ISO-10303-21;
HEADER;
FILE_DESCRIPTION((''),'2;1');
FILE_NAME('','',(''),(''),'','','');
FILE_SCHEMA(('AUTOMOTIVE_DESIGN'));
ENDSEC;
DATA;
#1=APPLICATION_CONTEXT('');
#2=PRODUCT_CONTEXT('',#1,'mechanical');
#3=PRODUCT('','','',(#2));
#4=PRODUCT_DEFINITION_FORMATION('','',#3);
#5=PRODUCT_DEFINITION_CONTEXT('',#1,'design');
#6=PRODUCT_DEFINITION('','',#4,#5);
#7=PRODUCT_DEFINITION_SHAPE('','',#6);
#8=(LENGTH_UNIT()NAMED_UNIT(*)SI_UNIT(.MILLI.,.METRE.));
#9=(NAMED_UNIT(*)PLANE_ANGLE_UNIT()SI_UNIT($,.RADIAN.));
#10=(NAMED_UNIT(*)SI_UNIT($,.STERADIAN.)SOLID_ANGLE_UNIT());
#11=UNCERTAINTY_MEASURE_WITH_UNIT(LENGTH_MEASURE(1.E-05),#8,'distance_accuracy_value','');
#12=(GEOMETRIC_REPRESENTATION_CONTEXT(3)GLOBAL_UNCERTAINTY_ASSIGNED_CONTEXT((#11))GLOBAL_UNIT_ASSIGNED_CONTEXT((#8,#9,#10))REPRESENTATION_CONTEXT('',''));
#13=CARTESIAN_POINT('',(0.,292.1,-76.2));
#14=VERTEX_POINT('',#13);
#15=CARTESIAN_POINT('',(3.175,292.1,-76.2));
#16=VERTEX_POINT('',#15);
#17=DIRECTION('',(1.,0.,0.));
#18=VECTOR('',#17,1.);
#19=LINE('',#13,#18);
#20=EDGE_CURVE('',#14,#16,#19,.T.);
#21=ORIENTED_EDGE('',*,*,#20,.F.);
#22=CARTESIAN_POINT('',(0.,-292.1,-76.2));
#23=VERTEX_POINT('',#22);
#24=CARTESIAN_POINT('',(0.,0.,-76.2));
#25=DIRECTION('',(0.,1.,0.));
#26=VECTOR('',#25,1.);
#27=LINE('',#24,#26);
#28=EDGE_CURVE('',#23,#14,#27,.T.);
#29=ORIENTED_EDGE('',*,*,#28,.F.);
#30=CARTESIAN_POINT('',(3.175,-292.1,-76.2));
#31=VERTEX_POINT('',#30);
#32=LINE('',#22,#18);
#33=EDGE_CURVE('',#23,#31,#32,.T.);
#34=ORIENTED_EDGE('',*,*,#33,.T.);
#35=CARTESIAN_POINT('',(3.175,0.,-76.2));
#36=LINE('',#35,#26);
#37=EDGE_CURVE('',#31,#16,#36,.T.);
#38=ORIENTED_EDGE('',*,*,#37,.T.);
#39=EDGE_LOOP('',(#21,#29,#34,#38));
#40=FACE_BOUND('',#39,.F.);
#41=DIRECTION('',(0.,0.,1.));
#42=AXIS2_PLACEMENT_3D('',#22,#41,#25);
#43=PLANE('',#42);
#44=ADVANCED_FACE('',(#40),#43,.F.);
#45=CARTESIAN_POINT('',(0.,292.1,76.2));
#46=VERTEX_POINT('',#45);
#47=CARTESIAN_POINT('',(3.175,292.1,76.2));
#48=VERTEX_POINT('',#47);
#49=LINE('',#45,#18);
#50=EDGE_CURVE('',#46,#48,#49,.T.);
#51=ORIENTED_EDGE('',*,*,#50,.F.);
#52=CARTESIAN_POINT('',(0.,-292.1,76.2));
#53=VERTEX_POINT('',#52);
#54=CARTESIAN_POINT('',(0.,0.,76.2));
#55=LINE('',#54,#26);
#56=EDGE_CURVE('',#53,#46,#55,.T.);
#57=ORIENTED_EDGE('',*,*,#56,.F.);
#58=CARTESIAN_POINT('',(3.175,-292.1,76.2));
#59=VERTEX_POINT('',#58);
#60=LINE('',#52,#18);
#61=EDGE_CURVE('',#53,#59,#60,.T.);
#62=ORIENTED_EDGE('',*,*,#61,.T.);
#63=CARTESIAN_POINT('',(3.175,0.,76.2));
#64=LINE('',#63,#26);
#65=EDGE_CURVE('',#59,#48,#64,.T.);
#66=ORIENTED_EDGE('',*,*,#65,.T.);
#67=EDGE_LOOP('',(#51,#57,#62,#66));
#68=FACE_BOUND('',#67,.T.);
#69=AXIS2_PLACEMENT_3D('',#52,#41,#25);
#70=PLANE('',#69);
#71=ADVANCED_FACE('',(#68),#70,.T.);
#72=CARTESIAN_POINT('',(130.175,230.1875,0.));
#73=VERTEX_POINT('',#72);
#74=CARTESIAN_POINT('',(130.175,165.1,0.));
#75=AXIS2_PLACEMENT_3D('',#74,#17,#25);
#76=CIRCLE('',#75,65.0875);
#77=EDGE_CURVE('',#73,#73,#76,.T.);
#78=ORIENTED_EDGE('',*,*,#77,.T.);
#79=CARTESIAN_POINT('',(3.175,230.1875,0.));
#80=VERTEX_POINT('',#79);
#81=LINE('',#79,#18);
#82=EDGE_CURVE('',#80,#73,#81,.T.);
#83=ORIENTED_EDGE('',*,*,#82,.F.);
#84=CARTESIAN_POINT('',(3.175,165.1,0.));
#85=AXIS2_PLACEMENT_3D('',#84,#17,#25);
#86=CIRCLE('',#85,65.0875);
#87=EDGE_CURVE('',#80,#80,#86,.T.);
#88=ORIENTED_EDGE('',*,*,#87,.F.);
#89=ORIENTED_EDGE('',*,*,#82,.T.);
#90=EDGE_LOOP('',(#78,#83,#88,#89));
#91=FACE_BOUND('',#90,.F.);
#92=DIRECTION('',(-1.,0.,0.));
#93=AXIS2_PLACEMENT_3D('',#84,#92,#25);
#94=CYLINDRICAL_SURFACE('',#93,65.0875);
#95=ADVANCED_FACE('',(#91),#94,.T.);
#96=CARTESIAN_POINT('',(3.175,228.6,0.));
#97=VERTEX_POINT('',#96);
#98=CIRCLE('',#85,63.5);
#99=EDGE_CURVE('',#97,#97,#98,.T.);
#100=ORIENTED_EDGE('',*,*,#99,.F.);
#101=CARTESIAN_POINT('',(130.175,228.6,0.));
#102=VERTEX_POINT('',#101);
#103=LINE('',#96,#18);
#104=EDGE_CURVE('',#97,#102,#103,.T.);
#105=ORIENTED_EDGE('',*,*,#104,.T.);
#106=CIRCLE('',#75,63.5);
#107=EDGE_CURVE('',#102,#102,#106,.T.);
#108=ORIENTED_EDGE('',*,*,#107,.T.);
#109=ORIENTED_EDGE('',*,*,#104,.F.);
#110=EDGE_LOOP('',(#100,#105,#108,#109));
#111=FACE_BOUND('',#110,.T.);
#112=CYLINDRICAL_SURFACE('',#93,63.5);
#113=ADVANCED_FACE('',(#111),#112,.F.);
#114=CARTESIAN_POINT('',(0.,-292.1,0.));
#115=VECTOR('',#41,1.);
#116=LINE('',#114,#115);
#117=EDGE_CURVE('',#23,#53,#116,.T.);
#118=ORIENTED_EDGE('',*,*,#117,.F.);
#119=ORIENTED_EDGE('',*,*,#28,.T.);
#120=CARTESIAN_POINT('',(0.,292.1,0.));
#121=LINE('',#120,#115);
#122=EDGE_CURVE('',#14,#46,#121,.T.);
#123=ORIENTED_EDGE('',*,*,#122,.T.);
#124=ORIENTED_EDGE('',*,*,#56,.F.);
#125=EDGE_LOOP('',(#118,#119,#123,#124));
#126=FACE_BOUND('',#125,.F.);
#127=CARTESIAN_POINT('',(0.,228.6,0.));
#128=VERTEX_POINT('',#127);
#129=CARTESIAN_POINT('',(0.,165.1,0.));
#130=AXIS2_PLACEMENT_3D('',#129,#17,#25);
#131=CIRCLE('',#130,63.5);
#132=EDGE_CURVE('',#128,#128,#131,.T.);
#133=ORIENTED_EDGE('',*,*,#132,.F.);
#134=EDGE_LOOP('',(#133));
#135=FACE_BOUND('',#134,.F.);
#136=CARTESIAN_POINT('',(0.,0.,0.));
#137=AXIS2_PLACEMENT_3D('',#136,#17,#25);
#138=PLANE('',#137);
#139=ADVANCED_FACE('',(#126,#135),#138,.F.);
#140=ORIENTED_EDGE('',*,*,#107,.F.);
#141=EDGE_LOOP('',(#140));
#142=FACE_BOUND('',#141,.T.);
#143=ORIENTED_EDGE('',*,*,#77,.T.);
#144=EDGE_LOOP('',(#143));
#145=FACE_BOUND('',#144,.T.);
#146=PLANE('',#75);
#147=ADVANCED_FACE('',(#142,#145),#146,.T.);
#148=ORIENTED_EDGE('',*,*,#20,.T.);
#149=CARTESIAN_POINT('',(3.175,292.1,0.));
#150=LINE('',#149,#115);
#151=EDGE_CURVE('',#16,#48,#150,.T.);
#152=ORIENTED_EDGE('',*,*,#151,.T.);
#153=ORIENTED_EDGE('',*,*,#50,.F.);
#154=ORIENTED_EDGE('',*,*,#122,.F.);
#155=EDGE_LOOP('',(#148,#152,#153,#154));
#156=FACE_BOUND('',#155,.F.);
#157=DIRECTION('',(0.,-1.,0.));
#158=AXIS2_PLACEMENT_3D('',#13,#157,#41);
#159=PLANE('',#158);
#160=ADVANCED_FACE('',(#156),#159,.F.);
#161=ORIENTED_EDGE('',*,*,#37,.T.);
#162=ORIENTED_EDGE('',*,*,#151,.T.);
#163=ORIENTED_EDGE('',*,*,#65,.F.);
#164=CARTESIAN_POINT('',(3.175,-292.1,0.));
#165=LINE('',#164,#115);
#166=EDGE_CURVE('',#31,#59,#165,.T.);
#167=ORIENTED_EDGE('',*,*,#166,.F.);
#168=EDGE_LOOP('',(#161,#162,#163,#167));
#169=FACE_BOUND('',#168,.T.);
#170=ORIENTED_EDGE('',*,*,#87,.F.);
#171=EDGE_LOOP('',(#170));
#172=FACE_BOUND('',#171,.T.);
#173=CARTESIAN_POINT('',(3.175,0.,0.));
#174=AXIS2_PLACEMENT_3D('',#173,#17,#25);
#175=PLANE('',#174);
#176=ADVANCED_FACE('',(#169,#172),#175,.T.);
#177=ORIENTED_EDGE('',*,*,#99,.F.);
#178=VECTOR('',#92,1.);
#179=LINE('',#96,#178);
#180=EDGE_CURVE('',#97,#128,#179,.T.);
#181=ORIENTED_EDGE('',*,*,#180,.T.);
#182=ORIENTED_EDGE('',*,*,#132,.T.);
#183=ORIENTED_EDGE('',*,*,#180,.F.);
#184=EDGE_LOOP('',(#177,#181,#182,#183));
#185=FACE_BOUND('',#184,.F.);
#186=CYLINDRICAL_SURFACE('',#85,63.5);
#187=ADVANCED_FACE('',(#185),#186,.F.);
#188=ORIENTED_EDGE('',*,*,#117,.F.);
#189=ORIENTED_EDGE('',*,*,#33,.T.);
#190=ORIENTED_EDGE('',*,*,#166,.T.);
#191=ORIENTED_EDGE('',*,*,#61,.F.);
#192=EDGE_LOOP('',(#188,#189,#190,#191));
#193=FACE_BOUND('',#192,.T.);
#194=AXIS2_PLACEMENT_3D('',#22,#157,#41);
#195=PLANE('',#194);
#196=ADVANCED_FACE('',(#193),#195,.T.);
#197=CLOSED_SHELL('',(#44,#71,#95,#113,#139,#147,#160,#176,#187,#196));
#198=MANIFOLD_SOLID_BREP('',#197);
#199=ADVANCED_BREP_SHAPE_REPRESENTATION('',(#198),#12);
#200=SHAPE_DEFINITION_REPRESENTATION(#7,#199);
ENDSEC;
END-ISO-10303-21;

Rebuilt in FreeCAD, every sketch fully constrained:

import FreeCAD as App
import Part
import Sketcher

V = App.Vector
Q = App.Units.Quantity


def add_polygon(sketch, points):
    """Adds a closed chain of lines whose ends are joined by coincident constraints."""
    first, n = sketch.GeometryCount, len(points)
    for a, b in zip(points, points[1:] + points[:1]):
        sketch.addGeometry(Part.LineSegment(App.Vector(*a, 0), App.Vector(*b, 0)), False)
    for i in range(n):
        sketch.addConstraint(Sketcher.Constraint("Coincident", first + i, 2, first + (i + 1) % n, 1))

doc = App.newDocument("Part")
body = doc.addObject("PartDesign::Body", "Body")

# Sketch on YZ plane
sketch1 = body.newObject("Sketcher::SketchObject", "Sketch")
sketch1.AttachmentSupport = (doc.getObject("YZ_Plane"), [""])
sketch1.MapMode = "FlatFace"
add_polygon(sketch1, [(-292.1, 76.2), (-292.1, -76.2), (292.1, -76.2), (292.1, 76.2)])  # lines 0-3
sketch1.addConstraint(Sketcher.Constraint("Vertical", 0))
sketch1.addConstraint(Sketcher.Constraint("Horizontal", 1))
sketch1.addConstraint(Sketcher.Constraint("Vertical", 2))
sketch1.addConstraint(Sketcher.Constraint("Horizontal", 3))
sketch1.addConstraint(Sketcher.Constraint("Symmetric", 0, 2, 2, 2, -1, 1))
sketch1.addConstraint(Sketcher.Constraint("DistanceX", 1, 1, 1, 2, Q("23 in")))
sketch1.addConstraint(Sketcher.Constraint("DistanceY", 0, 2, 0, 1, Q("6 in")))
pad1 = body.newObject("PartDesign::Pad", "Pad")
pad1.Profile = sketch1
pad1.Length = Q("0.125 in")

# Sketch on YZ plane
sketch2 = body.newObject("Sketcher::SketchObject", "Sketch001")
sketch2.AttachmentSupport = (doc.getObject("YZ_Plane"), [""])
sketch2.MapMode = "FlatFace"
sketch2.AttachmentOffset = App.Placement(V(0, 0, 0.125 * 25.4), App.Rotation())
sketch2.addGeometry(Part.Circle(V(165.1, 0, 0), V(0, 0, 1), 63.5), False)
sketch2.addConstraint(Sketcher.Constraint("PointOnObject", 0, 3, -1))
sketch2.addConstraint(Sketcher.Constraint("Diameter", 0, Q("5 in")))
sketch2.addConstraint(Sketcher.Constraint("DistanceX", -1, 1, 0, 3, Q("6.5 in")))
pocket1 = body.newObject("PartDesign::Pocket", "Pocket")
pocket1.Profile = sketch2
pocket1.Length = Q("1 in")

# Sketch on YZ plane
sketch3 = body.newObject("Sketcher::SketchObject", "Sketch002")
sketch3.AttachmentSupport = (doc.getObject("YZ_Plane"), [""])
sketch3.MapMode = "FlatFace"
sketch3.AttachmentOffset = App.Placement(V(0, 0, 0.125 * 25.4), App.Rotation())
sketch3.addGeometry(Part.Circle(V(165.1, 0, 0), V(0, 0, 1), 65.0875), False)
sketch3.addGeometry(Part.Circle(V(165.1, 0, 0), V(0, 0, 1), 63.5), False)
sketch3.addConstraint(Sketcher.Constraint("Coincident", 1, 3, 0, 3))
sketch3.addConstraint(Sketcher.Constraint("PointOnObject", 0, 3, -1))
sketch3.addConstraint(Sketcher.Constraint("Diameter", 1, Q("5 in")))
sketch3.addConstraint(Sketcher.Constraint("Diameter", 0, Q("5.125 in")))
sketch3.addConstraint(Sketcher.Constraint("DistanceX", -1, 1, 0, 3, Q("6.5 in")))
pad2 = body.newObject("PartDesign::Pad", "Pad001")
pad2.Profile = sketch3
pad2.Length = Q("5 in")

doc.recompute()
